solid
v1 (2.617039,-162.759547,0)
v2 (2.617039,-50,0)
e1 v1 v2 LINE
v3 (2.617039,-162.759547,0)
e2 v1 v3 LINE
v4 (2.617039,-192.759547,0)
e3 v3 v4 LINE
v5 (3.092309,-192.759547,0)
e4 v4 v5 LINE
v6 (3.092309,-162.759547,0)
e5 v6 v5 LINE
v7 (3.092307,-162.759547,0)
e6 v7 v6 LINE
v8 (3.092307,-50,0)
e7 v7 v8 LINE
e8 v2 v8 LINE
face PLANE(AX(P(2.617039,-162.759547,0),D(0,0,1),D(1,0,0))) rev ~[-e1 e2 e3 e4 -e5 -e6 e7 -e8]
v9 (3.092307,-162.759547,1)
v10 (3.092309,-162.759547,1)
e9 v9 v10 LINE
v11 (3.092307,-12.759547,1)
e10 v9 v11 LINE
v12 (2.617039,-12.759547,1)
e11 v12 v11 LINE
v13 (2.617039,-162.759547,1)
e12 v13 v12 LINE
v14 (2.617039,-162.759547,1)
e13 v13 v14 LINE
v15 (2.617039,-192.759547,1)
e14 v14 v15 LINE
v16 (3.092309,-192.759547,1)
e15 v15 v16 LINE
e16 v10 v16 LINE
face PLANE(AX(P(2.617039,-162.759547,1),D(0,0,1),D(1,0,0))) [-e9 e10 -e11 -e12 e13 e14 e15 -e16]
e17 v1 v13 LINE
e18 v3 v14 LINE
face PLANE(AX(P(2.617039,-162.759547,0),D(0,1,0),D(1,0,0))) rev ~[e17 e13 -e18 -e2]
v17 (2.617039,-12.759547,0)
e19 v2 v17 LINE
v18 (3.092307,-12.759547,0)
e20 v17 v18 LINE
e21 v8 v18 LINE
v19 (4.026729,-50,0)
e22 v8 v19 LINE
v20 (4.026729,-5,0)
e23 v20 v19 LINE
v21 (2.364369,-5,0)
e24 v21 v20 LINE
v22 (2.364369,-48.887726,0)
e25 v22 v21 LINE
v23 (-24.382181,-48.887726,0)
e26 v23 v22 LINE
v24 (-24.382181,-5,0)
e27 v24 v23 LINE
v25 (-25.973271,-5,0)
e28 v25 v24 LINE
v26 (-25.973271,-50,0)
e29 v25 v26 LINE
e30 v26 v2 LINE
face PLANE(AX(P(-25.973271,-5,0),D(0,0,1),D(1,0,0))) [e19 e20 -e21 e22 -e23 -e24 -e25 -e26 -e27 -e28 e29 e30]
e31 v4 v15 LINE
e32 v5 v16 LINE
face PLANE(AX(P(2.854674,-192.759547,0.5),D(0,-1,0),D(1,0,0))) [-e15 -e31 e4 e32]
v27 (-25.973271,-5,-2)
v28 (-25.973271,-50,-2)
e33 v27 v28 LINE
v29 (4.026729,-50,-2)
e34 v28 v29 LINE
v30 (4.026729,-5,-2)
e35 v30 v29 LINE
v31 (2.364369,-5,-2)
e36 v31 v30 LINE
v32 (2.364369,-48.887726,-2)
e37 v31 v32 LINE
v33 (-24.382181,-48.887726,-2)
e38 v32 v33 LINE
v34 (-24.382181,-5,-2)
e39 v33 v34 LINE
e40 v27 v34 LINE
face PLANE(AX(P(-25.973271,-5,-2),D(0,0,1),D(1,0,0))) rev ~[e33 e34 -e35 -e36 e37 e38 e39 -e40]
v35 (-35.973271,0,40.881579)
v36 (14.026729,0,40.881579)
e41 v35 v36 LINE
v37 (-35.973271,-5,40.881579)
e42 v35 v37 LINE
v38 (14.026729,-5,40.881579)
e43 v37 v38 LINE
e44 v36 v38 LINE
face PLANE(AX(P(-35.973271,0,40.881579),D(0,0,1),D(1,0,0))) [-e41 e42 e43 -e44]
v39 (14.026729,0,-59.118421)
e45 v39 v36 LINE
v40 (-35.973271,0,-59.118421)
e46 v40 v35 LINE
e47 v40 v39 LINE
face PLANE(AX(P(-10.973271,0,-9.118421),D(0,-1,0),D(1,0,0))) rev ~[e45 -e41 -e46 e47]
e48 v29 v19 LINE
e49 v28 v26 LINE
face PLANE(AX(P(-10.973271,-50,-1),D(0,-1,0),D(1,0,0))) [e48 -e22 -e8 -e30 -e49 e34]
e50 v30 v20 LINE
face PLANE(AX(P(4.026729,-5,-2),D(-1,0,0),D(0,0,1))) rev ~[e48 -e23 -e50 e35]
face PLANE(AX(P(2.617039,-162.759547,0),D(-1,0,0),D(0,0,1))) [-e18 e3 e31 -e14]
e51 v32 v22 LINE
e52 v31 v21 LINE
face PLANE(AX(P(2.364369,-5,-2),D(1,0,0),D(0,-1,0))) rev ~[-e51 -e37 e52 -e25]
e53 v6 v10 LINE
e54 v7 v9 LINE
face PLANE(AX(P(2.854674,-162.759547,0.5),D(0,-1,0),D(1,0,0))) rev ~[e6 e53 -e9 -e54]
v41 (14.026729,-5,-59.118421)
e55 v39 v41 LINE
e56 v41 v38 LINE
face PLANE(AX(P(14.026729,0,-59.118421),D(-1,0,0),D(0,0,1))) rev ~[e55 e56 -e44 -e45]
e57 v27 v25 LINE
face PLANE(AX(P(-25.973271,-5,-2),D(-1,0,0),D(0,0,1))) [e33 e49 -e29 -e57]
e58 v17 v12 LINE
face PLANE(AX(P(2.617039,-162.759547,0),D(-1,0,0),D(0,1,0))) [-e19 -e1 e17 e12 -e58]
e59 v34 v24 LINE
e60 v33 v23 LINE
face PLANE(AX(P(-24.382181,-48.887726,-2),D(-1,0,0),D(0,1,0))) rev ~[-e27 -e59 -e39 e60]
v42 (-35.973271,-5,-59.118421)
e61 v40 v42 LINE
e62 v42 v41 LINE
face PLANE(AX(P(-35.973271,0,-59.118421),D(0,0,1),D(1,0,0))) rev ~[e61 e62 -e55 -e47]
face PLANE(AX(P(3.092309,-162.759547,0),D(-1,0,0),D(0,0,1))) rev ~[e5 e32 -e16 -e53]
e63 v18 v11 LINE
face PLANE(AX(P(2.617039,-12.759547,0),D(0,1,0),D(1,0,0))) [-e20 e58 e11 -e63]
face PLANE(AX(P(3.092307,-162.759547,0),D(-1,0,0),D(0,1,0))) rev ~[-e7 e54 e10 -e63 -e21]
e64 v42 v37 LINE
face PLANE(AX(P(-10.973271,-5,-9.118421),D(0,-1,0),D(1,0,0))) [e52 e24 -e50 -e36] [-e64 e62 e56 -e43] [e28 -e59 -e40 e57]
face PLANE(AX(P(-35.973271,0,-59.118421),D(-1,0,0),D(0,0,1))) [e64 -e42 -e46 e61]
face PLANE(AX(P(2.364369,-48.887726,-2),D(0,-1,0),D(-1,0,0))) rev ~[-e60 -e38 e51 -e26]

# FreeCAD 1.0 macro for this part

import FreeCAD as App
import Part
import Sketcher
from FreeCAD import Vector
Q = App.Units.Quantity

doc = App.newDocument("Part")
body = doc.addObject("PartDesign::Body", "Body")

sketch1 = doc.addObject("Sketcher::SketchObject", "Sketch")
body.addObject(sketch1)
sketch1.AttachmentSupport = (doc.XZ_Plane, [""])
sketch1.MapMode = "FlatFace"
sketch1.addGeometry(Part.LineSegment(Vector(-35.973271, 40.881579, 0), Vector(-35.973271, -59.118421, 0)), False)
sketch1.addGeometry(Part.LineSegment(Vector(-35.973271, -59.118421, 0), Vector(14.026729, -59.118421, 0)), False)
sketch1.addGeometry(Part.LineSegment(Vector(14.026729, -59.118421, 0), Vector(14.026729, 40.881579, 0)), False)
sketch1.addGeometry(Part.LineSegment(Vector(14.026729, 40.881579, 0), Vector(-35.973271, 40.881579, 0)), False)
sketch1.addConstraint(Sketcher.Constraint("Coincident", 0, 2, 1, 1))
sketch1.addConstraint(Sketcher.Constraint("Coincident", 1, 2, 2, 1))
sketch1.addConstraint(Sketcher.Constraint("Coincident", 2, 2, 3, 1))
sketch1.addConstraint(Sketcher.Constraint("Coincident", 3, 2, 0, 1))
sketch1.addConstraint(Sketcher.Constraint("Vertical", 0))
sketch1.addConstraint(Sketcher.Constraint("Horizontal", 1))
sketch1.addConstraint(Sketcher.Constraint("Vertical", 2))
sketch1.addConstraint(Sketcher.Constraint("Horizontal", 3))
sketch1.addConstraint(Sketcher.Constraint("DistanceX", 1, 1, 1, 2, Q("50 mm")))
sketch1.addConstraint(Sketcher.Constraint("DistanceY", 0, 2, 0, 1, Q("100 mm")))
sketch1.addConstraint(Sketcher.Constraint("DistanceX", 0, 2, -1, 1, Q("35.973271 mm")))
sketch1.addConstraint(Sketcher.Constraint("DistanceY", 0, 2, -1, 1, Q("59.118421 mm")))
pad1 = doc.addObject("PartDesign::Pad", "Pad")
body.addObject(pad1)
pad1.Profile = sketch1
pad1.Length = 5

sketch2 = doc.addObject("Sketcher::SketchObject", "Sketch001")
body.addObject(sketch2)
sketch2.AttachmentSupport = (doc.XZ_Plane, [""])
sketch2.MapMode = "FlatFace"
sketch2.AttachmentOffset = App.Placement(Vector(0, 0, 5), App.Rotation())
sketch2.addGeometry(Part.LineSegment(Vector(-25.973271, 0, 0), Vector(-25.973271, -2, 0)), False)
sketch2.addGeometry(Part.LineSegment(Vector(-25.973271, -2, 0), Vector(4.026729, -2, 0)), False)
sketch2.addGeometry(Part.LineSegment(Vector(4.026729, -2, 0), Vector(4.026729, 0, 0)), False)
sketch2.addGeometry(Part.LineSegment(Vector(4.026729, 0, 0), Vector(-25.973271, 0, 0)), False)
sketch2.addConstraint(Sketcher.Constraint("Coincident", 0, 2, 1, 1))
sketch2.addConstraint(Sketcher.Constraint("Coincident", 1, 2, 2, 1))
sketch2.addConstraint(Sketcher.Constraint("Coincident", 2, 2, 3, 1))
sketch2.addConstraint(Sketcher.Constraint("Coincident", 3, 2, 0, 1))
sketch2.addConstraint(Sketcher.Constraint("Vertical", 0))
sketch2.addConstraint(Sketcher.Constraint("Horizontal", 1))
sketch2.addConstraint(Sketcher.Constraint("Vertical", 2))
sketch2.addConstraint(Sketcher.Constraint("Horizontal", 3))
sketch2.addConstraint(Sketcher.Constraint("PointOnObject", 2, 2, -1))
sketch2.addConstraint(Sketcher.Constraint("DistanceX", 1, 1, 1, 2, Q("30 mm")))
sketch2.addConstraint(Sketcher.Constraint("DistanceY", 0, 2, 0, 1, Q("2 mm")))
sketch2.addConstraint(Sketcher.Constraint("DistanceX", 0, 2, -1, 1, Q("25.973271 mm")))
pad2 = doc.addObject("PartDesign::Pad", "Pad001")
body.addObject(pad2)
pad2.Profile = sketch2
pad2.Length = 45

sketch3 = doc.addObject("Sketcher::SketchObject", "Sketch002")
body.addObject(sketch3)
sketch3.AttachmentSupport = (doc.XY_Plane, [""])
sketch3.MapMode = "FlatFace"
sketch3.AttachmentOffset = App.Placement(Vector(0, 0, -2), App.Rotation())
sketch3.addGeometry(Part.LineSegment(Vector(-24.382181, -5, 0), Vector(2.364369, -5, 0)), False)
sketch3.addGeometry(Part.LineSegment(Vector(2.364369, -5, 0), Vector(2.364369, -48.887726, 0)), False)
sketch3.addGeometry(Part.LineSegment(Vector(2.364369, -48.887726, 0), Vector(-24.382181, -48.887726, 0)), False)
sketch3.addGeometry(Part.LineSegment(Vector(-24.382181, -48.887726, 0), Vector(-24.382181, -5, 0)), False)
sketch3.addConstraint(Sketcher.Constraint("Coincident", 0, 2, 1, 1))
sketch3.addConstraint(Sketcher.Constraint("Coincident", 1, 2, 2, 1))
sketch3.addConstraint(Sketcher.Constraint("Coincident", 2, 2, 3, 1))
sketch3.addConstraint(Sketcher.Constraint("Coincident", 3, 2, 0, 1))
sketch3.addConstraint(Sketcher.Constraint("Horizontal", 0))
sketch3.addConstraint(Sketcher.Constraint("Vertical", 1))
sketch3.addConstraint(Sketcher.Constraint("Horizontal", 2))
sketch3.addConstraint(Sketcher.Constraint("Vertical", 3))
sketch3.addConstraint(Sketcher.Constraint("DistanceY", 0, 2, -1, 1, Q("5 mm")))
sketch3.addConstraint(Sketcher.Constraint("DistanceX", 0, 1, 0, 2, Q("26.74655 mm")))
sketch3.addConstraint(Sketcher.Constraint("DistanceY", 1, 2, 1, 1, Q("43.887726 mm")))
sketch3.addConstraint(Sketcher.Constraint("DistanceX", -1, 1, 0, 2, Q("2.364369 mm")))
pocket1 = doc.addObject("PartDesign::Pocket", "Pocket")
body.addObject(pocket1)
pocket1.Profile = sketch3
pocket1.Length = 41
pocket1.Reversed = True

sketch4 = doc.addObject("Sketcher::SketchObject", "Sketch003")
body.addObject(sketch4)
sketch4.AttachmentSupport = (doc.XY_Plane, [""])
sketch4.MapMode = "FlatFace"
sketch4.addGeometry(Part.LineSegment(Vector(2.617039, -12.759547, 0), Vector(2.617039, -162.759547, 0)), False)
sketch4.addGeometry(Part.LineSegment(Vector(2.617039, -162.759547, 0), Vector(3.092307, -162.759547, 0)), False)
sketch4.addGeometry(Part.LineSegment(Vector(3.092307, -162.759547, 0), Vector(3.092307, -12.759547, 0)), False)
sketch4.addGeometry(Part.LineSegment(Vector(3.092307, -12.759547, 0), Vector(2.617039, -12.759547, 0)), False)
sketch4.addConstraint(Sketcher.Constraint("Coincident", 0, 2, 1, 1))
sketch4.addConstraint(Sketcher.Constraint("Coincident", 1, 2, 2, 1))
sketch4.addConstraint(Sketcher.Constraint("Coincident", 2, 2, 3, 1))
sketch4.addConstraint(Sketcher.Constraint("Coincident", 3, 2, 0, 1))
sketch4.addConstraint(Sketcher.Constraint("Vertical", 0))
sketch4.addConstraint(Sketcher.Constraint("Horizontal", 1))
sketch4.addConstraint(Sketcher.Constraint("Vertical", 2))
sketch4.addConstraint(Sketcher.Constraint("Horizontal", 3))
sketch4.addConstraint(Sketcher.Constraint("DistanceY", 0, 2, 0, 1, Q("150 mm")))
sketch4.addConstraint(Sketcher.Constraint("DistanceX", 1, 1, 1, 2, Q("0.475269 mm")))
sketch4.addConstraint(Sketcher.Constraint("DistanceX", -1, 1, 0, 2, Q("2.617039 mm")))
sketch4.addConstraint(Sketcher.Constraint("DistanceY", 0, 2, -1, 1, Q("162.759547 mm")))
pad3 = doc.addObject("PartDesign::Pad", "Pad002")
body.addObject(pad3)
pad3.Profile = sketch4
pad3.Length = 1

sketch5 = doc.addObject("Sketcher::SketchObject", "Sketch004")
body.addObject(sketch5)
sketch5.AttachmentSupport = (doc.XZ_Plane, [""])
sketch5.MapMode = "FlatFace"
sketch5.AttachmentOffset = App.Placement(Vector(0, 0, 162.759547), App.Rotation())
sketch5.addGeometry(Part.LineSegment(Vector(2.617039, 1, 0), Vector(2.617039, 0, 0)), False)
sketch5.addGeometry(Part.LineSegment(Vector(2.617039, 0, 0), Vector(3.092309, 0, 0)), False)
sketch5.addGeometry(Part.LineSegment(Vector(3.092309, 0, 0), Vector(3.092309, 1, 0)), False)
sketch5.addGeometry(Part.LineSegment(Vector(3.092309, 1, 0), Vector(2.617039, 1, 0)), False)
sketch5.addConstraint(Sketcher.Constraint("Coincident", 0, 2, 1, 1))
sketch5.addConstraint(Sketcher.Constraint("Coincident", 1, 2, 2, 1))
sketch5.addConstraint(Sketcher.Constraint("Coincident", 2, 2, 3, 1))
sketch5.addConstraint(Sketcher.Constraint("Coincident", 3, 2, 0, 1))
sketch5.addConstraint(Sketcher.Constraint("Vertical", 0))
sketch5.addConstraint(Sketcher.Constraint("Horizontal", 1))
sketch5.addConstraint(Sketcher.Constraint("Vertical", 2))
sketch5.addConstraint(Sketcher.Constraint("Horizontal", 3))
sketch5.addConstraint(Sketcher.Constraint("PointOnObject", 0, 2, -1))
sketch5.addConstraint(Sketcher.Constraint("DistanceY", 0, 2, 0, 1, Q("1 mm")))
sketch5.addConstraint(Sketcher.Constraint("DistanceX", 1, 1, 1, 2, Q("0.47527 mm")))
sketch5.addConstraint(Sketcher.Constraint("DistanceX", -1, 1, 0, 2, Q("2.617039 mm")))
pad4 = doc.addObject("PartDesign::Pad", "Pad003")
body.addObject(pad4)
pad4.Profile = sketch5
pad4.Length = 30

doc.recompute()
